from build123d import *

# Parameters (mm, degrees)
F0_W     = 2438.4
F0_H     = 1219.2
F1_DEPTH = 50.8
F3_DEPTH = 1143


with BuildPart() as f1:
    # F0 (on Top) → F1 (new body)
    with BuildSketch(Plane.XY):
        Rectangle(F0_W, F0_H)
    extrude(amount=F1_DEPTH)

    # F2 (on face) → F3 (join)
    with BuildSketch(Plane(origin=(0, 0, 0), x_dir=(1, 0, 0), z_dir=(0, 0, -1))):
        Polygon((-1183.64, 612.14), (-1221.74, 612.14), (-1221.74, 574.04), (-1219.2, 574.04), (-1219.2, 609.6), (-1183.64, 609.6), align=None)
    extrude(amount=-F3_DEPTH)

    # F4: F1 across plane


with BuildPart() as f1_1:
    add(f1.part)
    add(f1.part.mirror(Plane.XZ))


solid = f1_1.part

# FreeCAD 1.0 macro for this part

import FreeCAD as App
import Part
import Sketcher
from FreeCAD import Vector
Q = App.Units.Quantity

doc = App.newDocument("Part")
body = doc.addObject("PartDesign::Body", "Body")

# Sketch on XY plane
sketch1 = body.newObject("Sketcher::SketchObject", "Sketch")
sketch1.AttachmentSupport = (doc.getObject("XY_Plane"), [""])
sketch1.MapMode = "FlatFace"
sketch1.addGeometry(Part.LineSegment(Vector(-1219, 610, 0), Vector(-1219, -610, 0)), False)
sketch1.addGeometry(Part.LineSegment(Vector(-1219, -610, 0), Vector(1219, -610, 0)), False)
sketch1.addGeometry(Part.LineSegment(Vector(1219, -610, 0), Vector(1219, 610, 0)), False)
sketch1.addGeometry(Part.LineSegment(Vector(1219, 610, 0), Vector(-1219, 610, 0)), False)
sketch1.addConstraint(Sketcher.Constraint("Coincident", 0, 2, 1, 1))
sketch1.addConstraint(Sketcher.Constraint("Coincident", 1, 2, 2, 1))
sketch1.addConstraint(Sketcher.Constraint("Coincident", 2, 2, 3, 1))
sketch1.addConstraint(Sketcher.Constraint("Coincident", 3, 2, 0, 1))
sketch1.addConstraint(Sketcher.Constraint("Vertical", 0))
sketch1.addConstraint(Sketcher.Constraint("Horizontal", 1))
sketch1.addConstraint(Sketcher.Constraint("Vertical", 2))
sketch1.addConstraint(Sketcher.Constraint("Horizontal", 3))
sketch1.addConstraint(Sketcher.Constraint("Symmetric", 0, 2, 2, 2, -1, 1))
sketch1.addConstraint(Sketcher.Constraint("DistanceX", 1, 1, 1, 2, Q("96 in")))
sketch1.addConstraint(Sketcher.Constraint("DistanceY", 0, 2, 0, 1, Q("48 in")))
pad1 = body.newObject("PartDesign::Pad", "Pad")
pad1.Profile = sketch1
pad1.Length = Q("2 in")

# Sketch on XY plane
sketch2 = body.newObject("Sketcher::SketchObject", "Sketch001")
sketch2.AttachmentSupport = (doc.getObject("XY_Plane"), [""])
sketch2.MapMode = "FlatFace"
sketch2.addGeometry(Part.LineSegment(Vector(-1183.6, -612.1, 0), Vector(-1221.7, -612.1, 0)), False)
sketch2.addGeometry(Part.LineSegment(Vector(-1221.7, -612.1, 0), Vector(-1221.7, -574, 0)), False)
sketch2.addGeometry(Part.LineSegment(Vector(-1221.7, -574, 0), Vector(-1219.2, -574, 0)), False)
sketch2.addGeometry(Part.LineSegment(Vector(-1219.2, -574, 0), Vector(-1219.2, -609.6, 0)), False)
sketch2.addGeometry(Part.LineSegment(Vector(-1219.2, -609.6, 0), Vector(-1183.6, -609.6, 0)), False)
sketch2.addGeometry(Part.LineSegment(Vector(-1183.6, -609.6, 0), Vector(-1183.6, -612.1, 0)), False)
sketch2.addConstraint(Sketcher.Constraint("Coincident", 0, 2, 1, 1))
sketch2.addConstraint(Sketcher.Constraint("Coincident", 1, 2, 2, 1))
sketch2.addConstraint(Sketcher.Constraint("Coincident", 2, 2, 3, 1))
sketch2.addConstraint(Sketcher.Constraint("Coincident", 3, 2, 4, 1))
sketch2.addConstraint(Sketcher.Constraint("Coincident", 4, 2, 5, 1))
sketch2.addConstraint(Sketcher.Constraint("Coincident", 5, 2, 0, 1))
sketch2.addConstraint(Sketcher.Constraint("Horizontal", 0))
sketch2.addConstraint(Sketcher.Constraint("Vertical", 1))
sketch2.addConstraint(Sketcher.Constraint("Horizontal", 2))
sketch2.addConstraint(Sketcher.Constraint("Vertical", 3))
sketch2.addConstraint(Sketcher.Constraint("Horizontal", 4))
sketch2.addConstraint(Sketcher.Constraint("Vertical", 5))
sketch2.addConstraint(Sketcher.Constraint("Equal", 0, 1))
sketch2.addConstraint(Sketcher.Constraint("Equal", 4, 3))
sketch2.addConstraint(Sketcher.Constraint("DistanceX", 0, 2, 0, 1, Q("1.5 in")))
sketch2.addConstraint(Sketcher.Constraint("DistanceX", 2, 1, 2, 2, Q("0.1 in")))
sketch2.addConstraint(Sketcher.Constraint("DistanceX", 2, 2, -1, 1, Q("48 in")))
sketch2.addConstraint(Sketcher.Constraint("DistanceY", 3, 2, -1, 1, Q("24 in")))
pad2 = body.newObject("PartDesign::Pad", "Pad001")
pad2.Profile = sketch2
pad2.Length = Q("45 in")
body2 = doc.addObject("PartDesign::Body", "Body001")
doc.recompute()

body2.BaseFeature = body
doc.recompute()

mirroring = doc.addObject("Part::Mirroring", "Mirroring")
mirroring.Source = body
mirroring.Base = Vector(0, 0, 0)
mirroring.Normal = Vector(0, -1, 0)
body3 = doc.addObject("PartDesign::Body", "Body002")
body3.BaseFeature = mirroring
boolean = body2.newObject("PartDesign::Boolean", "Boolean")
boolean.Type = "Fuse"
boolean.addObjects([body3])
doc.recompute()
mirroring.Visibility = False

doc.recompute()
